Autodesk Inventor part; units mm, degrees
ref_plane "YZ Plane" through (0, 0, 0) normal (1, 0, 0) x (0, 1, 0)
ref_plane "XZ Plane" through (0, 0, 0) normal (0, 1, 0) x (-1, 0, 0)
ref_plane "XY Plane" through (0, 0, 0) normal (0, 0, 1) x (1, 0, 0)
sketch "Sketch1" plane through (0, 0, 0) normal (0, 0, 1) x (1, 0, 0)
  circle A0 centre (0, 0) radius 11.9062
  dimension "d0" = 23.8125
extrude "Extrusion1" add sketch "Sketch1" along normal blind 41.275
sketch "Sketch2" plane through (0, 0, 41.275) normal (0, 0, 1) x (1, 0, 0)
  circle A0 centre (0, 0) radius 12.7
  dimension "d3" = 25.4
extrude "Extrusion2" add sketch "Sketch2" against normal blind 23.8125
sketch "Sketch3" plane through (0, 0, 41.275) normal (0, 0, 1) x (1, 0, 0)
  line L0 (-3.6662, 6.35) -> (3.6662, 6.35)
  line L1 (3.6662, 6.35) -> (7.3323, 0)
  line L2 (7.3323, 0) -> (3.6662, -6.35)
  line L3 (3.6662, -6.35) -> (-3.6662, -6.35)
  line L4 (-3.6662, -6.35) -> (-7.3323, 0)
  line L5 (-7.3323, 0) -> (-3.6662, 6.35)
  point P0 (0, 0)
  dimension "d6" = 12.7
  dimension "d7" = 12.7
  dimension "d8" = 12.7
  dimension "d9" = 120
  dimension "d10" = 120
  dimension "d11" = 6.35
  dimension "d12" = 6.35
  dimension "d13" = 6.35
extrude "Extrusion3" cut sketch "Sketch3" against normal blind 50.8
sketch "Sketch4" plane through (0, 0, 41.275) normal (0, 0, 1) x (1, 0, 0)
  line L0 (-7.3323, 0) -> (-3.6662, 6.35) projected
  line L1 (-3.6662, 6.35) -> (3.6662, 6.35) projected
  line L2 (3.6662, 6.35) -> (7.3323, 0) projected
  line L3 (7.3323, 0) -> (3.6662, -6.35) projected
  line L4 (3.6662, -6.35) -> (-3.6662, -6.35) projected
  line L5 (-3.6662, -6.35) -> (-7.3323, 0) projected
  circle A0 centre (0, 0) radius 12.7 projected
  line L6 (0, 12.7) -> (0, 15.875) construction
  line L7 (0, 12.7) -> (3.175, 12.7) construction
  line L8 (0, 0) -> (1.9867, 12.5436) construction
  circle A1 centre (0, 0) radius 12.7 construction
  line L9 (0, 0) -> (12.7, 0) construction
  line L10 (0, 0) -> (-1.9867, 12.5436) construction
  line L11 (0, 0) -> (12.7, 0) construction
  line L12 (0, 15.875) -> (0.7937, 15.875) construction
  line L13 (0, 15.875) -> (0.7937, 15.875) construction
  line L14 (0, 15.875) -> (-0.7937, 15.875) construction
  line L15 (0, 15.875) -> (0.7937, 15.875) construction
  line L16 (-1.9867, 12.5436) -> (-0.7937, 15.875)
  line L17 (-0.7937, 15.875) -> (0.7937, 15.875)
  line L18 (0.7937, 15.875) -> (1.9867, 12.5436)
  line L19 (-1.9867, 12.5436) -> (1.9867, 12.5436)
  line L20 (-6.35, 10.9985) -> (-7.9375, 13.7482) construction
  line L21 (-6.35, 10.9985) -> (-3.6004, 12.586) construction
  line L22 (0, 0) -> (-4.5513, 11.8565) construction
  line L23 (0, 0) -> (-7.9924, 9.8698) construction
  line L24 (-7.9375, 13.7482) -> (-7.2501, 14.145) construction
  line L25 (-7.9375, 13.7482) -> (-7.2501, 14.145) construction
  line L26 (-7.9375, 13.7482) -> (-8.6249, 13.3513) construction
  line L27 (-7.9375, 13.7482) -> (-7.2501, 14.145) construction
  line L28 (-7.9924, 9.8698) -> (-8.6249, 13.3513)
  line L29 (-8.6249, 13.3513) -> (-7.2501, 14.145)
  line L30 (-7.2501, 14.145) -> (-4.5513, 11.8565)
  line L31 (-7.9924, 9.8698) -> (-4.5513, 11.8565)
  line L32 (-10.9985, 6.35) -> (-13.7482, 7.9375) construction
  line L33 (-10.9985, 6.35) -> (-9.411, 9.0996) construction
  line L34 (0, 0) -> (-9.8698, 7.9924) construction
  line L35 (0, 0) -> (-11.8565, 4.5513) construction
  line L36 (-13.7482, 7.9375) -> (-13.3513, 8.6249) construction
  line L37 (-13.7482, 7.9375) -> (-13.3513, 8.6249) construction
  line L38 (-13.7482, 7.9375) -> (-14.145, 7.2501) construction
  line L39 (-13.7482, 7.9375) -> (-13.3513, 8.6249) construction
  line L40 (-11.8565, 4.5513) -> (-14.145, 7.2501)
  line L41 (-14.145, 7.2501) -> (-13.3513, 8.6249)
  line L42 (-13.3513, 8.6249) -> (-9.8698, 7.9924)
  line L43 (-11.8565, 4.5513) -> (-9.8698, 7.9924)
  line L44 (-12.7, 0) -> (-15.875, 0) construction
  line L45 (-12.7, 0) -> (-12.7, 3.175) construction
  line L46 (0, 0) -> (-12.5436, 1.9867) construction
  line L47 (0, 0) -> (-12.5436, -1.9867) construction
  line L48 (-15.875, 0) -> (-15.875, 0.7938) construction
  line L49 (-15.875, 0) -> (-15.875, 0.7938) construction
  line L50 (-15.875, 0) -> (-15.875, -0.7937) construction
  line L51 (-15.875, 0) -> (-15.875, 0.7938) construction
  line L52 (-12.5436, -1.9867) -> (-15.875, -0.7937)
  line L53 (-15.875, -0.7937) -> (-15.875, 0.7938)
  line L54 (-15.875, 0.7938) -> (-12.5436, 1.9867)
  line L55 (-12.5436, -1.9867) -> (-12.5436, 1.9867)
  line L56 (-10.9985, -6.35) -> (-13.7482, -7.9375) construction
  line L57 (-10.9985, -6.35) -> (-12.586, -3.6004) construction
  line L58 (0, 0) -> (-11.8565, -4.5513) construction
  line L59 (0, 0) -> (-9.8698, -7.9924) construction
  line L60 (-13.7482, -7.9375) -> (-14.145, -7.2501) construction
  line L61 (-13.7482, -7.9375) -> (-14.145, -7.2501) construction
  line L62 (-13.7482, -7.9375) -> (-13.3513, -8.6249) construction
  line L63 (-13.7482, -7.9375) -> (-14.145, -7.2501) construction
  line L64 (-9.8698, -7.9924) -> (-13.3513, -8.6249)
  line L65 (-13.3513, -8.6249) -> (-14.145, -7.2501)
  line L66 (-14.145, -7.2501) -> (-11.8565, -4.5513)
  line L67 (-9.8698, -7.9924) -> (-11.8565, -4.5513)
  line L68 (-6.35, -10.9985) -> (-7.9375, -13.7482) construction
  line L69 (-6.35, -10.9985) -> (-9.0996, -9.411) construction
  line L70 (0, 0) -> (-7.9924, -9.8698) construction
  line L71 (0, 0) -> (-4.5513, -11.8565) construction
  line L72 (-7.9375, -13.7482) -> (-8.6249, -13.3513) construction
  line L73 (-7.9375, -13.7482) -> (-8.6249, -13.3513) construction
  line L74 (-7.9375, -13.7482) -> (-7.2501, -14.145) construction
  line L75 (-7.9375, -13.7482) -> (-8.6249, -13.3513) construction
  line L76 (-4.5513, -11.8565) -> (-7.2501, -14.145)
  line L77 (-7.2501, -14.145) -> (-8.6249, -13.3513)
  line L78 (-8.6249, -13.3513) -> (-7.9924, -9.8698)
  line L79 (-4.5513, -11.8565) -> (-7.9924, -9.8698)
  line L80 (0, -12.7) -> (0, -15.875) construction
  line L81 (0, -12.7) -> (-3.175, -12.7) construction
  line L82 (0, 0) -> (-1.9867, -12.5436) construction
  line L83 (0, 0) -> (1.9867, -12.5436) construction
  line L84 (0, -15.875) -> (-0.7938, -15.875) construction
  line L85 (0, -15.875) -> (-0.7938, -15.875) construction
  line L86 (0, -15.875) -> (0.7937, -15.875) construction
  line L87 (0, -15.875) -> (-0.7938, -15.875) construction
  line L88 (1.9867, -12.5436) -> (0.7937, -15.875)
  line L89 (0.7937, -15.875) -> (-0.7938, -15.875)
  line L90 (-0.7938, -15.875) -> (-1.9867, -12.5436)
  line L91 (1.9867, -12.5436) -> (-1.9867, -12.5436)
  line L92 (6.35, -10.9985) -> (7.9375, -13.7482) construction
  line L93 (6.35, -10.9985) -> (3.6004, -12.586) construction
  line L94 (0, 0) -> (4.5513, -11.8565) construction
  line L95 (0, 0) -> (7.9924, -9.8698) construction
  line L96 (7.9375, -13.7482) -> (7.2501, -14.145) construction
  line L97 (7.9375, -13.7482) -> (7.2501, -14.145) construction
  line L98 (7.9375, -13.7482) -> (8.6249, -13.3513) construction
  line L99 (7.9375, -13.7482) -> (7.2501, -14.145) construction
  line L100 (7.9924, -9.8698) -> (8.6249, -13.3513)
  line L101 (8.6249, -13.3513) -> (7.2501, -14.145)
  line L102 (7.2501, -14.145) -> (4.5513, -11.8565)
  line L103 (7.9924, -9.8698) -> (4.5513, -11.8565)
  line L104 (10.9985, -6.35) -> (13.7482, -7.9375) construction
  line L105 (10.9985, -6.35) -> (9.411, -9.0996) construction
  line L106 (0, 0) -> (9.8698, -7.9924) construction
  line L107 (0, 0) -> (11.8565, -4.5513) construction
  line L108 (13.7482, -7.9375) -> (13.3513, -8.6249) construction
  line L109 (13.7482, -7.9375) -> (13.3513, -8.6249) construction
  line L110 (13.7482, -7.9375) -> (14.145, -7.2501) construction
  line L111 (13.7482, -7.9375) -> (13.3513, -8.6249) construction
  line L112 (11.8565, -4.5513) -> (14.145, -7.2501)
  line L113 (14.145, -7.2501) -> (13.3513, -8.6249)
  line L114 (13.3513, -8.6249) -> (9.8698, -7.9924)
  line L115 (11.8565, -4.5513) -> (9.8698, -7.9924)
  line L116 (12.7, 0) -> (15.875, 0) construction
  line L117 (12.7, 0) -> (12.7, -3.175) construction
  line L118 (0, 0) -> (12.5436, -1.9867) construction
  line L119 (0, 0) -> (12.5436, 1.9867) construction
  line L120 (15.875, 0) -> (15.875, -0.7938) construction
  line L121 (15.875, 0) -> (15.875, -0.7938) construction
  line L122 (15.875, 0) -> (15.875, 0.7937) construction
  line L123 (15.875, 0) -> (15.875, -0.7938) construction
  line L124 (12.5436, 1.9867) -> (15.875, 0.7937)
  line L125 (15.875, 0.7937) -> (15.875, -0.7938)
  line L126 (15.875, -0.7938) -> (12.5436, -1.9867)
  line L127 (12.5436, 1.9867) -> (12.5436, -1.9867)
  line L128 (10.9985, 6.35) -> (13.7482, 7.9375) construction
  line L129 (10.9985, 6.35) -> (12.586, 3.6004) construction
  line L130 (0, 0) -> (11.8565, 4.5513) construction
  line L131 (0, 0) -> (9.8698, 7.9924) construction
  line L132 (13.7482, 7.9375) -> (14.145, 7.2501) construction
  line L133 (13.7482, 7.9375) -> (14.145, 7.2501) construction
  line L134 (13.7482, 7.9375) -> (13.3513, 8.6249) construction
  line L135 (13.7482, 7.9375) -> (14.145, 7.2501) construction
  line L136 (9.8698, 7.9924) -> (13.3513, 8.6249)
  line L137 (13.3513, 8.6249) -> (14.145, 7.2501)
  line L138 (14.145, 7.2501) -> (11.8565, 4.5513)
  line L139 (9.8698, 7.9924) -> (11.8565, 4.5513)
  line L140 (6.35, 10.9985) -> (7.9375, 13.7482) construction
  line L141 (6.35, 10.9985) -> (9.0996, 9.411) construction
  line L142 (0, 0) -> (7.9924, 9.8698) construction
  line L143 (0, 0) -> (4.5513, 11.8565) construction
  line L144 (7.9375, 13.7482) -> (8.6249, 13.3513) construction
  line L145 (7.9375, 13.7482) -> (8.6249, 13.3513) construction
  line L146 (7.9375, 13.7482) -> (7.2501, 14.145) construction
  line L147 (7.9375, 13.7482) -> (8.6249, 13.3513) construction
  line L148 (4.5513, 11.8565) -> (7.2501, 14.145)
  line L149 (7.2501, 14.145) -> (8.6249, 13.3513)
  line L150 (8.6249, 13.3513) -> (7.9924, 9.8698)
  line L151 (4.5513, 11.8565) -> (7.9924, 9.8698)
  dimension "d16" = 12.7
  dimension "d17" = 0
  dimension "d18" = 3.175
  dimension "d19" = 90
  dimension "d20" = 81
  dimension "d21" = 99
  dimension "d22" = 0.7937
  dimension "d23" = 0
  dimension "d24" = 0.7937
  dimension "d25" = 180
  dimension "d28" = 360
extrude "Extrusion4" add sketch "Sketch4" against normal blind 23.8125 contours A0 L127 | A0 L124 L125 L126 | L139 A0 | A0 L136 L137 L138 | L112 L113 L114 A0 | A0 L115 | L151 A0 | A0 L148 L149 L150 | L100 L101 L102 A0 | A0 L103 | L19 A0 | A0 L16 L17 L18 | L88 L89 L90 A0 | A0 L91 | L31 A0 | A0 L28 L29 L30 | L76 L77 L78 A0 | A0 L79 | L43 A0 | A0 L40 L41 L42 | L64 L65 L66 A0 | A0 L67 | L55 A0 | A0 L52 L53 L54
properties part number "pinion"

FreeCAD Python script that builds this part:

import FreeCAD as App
import Part
import Sketcher
from FreeCAD import Vector
Q = App.Units.Quantity


def add_polygon(sketch, points):
    """Adds a closed chain of lines whose ends are joined by coincident constraints."""
    first, n = sketch.GeometryCount, len(points)
    for a, b in zip(points, points[1:] + points[:1]):
        sketch.addGeometry(Part.LineSegment(App.Vector(*a, 0), App.Vector(*b, 0)), False)
    for i in range(n):
        sketch.addConstraint(Sketcher.Constraint("Coincident", first + i, 2, first + (i + 1) % n, 1))

doc = App.newDocument("Part")
body = doc.addObject("PartDesign::Body", "Body")

# Sketch on XY plane
sketch1 = body.newObject("Sketcher::SketchObject", "Sketch")
sketch1.AttachmentSupport = (doc.getObject("XY_Plane"), [""])
sketch1.MapMode = "FlatFace"
sketch1.addGeometry(Part.Circle(Vector(0, 0, 0), Vector(0, 0, 1), 11.9062), False)
sketch1.addConstraint(Sketcher.Constraint("Coincident", 0, 3, -1, 1))
sketch1.addConstraint(Sketcher.Constraint("Diameter", 0, Q("0.9375 in")))
pad1 = body.newObject("PartDesign::Pad", "Pad")
pad1.Profile = sketch1
pad1.Length = Q("1.625 in")

# Sketch on XY plane
sketch2 = body.newObject("Sketcher::SketchObject", "Sketch001")
sketch2.AttachmentSupport = (doc.getObject("XY_Plane"), [""])
sketch2.MapMode = "FlatFace"
sketch2.AttachmentOffset = App.Placement(Vector(0, 0, 1.625 * 25.4), App.Rotation())
sketch2.addGeometry(Part.Circle(Vector(0, 0, 0), Vector(0, 0, 1), 12.7), False)
sketch2.addConstraint(Sketcher.Constraint("Coincident", 0, 3, -1, 1))
sketch2.addConstraint(Sketcher.Constraint("Diameter", 0, Q("1 in")))
pad2 = body.newObject("PartDesign::Pad", "Pad001")
pad2.Profile = sketch2
pad2.Length = Q("0.9375 in")
pad2.Reversed = True

# Sketch on XY plane
sketch3 = body.newObject("Sketcher::SketchObject", "Sketch002")
sketch3.AttachmentSupport = (doc.getObject("XY_Plane"), [""])
sketch3.MapMode = "FlatFace"
sketch3.AttachmentOffset = App.Placement(Vector(0, 0, 1.625 * 25.4), App.Rotation())
add_polygon(sketch3, [(3.6662, 6.35), (-3.6662, 6.35), (-7.3323, 0), (-3.6662, -6.35), (3.6662, -6.35), (7.3323, 0)])  # lines 0-5
sketch3.addConstraint(Sketcher.Constraint("Horizontal", 0))
sketch3.addConstraint(Sketcher.Constraint("Horizontal", 3))
sketch3.addConstraint(Sketcher.Constraint("Symmetric", 0, 2, 3, 2, -1, 1))
sketch3.addConstraint(Sketcher.Constraint("Symmetric", 1, 2, 4, 2, -1, 1))
sketch3.addConstraint(Sketcher.Constraint("PointOnObject", 1, 2, -1))
sketch3.addConstraint(Sketcher.Constraint("Parallel", 2, 5))
sketch3.addConstraint(Sketcher.Constraint("Vertical", 0, 2, 2, 2))
sketch3.addConstraint(Sketcher.Constraint("Angle", 1, Q("-119.9995 deg")))
sketch3.addConstraint(Sketcher.Constraint("DistanceY", 2, 2, 0, 2, Q("0.5 in")))
sketch3.addConstraint(Sketcher.Constraint("DistanceX", 1, 2, 3, 2, Q("0.433 in")))
pocket1 = body.newObject("PartDesign::Pocket", "Pocket")
pocket1.Profile = sketch3
pocket1.Length = Q("2 in")

# Sketch on XY plane
sketch4 = body.newObject("Sketcher::SketchObject", "Sketch003")
sketch4.AttachmentSupport = (doc.getObject("XY_Plane"), [""])
sketch4.MapMode = "FlatFace"
sketch4.AttachmentOffset = App.Placement(Vector(0, 0, 1.625 * 25.4), App.Rotation())
add_polygon(sketch4, [(12.5436, 1.9867), (12.5436, -1.9867), (15.875, -0.7938), (15.875, 0.7937)])  # lines 0-3
add_polygon(sketch4, [(9.8698, 7.9924), (11.8565, 4.5513), (14.145, 7.2501), (13.3513, 8.6249)])  # lines 4-7
add_polygon(sketch4, [(14.145, -7.2501), (11.8565, -4.5513), (9.8698, -7.9924), (13.3513, -8.6249)])  # lines 8-11
add_polygon(sketch4, [(4.5513, 11.8565), (7.9924, 9.8698), (8.6249, 13.3513), (7.2501, 14.145)])  # lines 12-15
add_polygon(sketch4, [(8.6249, -13.3513), (7.9924, -9.8698), (4.5513, -11.8565), (7.2501, -14.145)])  # lines 16-19
add_polygon(sketch4, [(-1.9867, 12.5436), (1.9867, 12.5436), (0.7937, 15.875), (-0.7937, 15.875)])  # lines 20-23
add_polygon(sketch4, [(0.7937, -15.875), (1.9867, -12.5436), (-1.9867, -12.5436), (-0.7938, -15.875)])  # lines 24-27
add_polygon(sketch4, [(-7.9924, 9.8698), (-4.5513, 11.8565), (-7.2501, 14.145), (-8.6249, 13.3513)])  # lines 28-31
add_polygon(sketch4, [(-7.2501, -14.145), (-4.5513, -11.8565), (-7.9924, -9.8698), (-8.6249, -13.3513)])  # lines 32-35
add_polygon(sketch4, [(-11.8565, 4.5513), (-9.8698, 7.9924), (-13.3513, 8.6249), (-14.145, 7.2501)])  # lines 36-39
add_polygon(sketch4, [(-13.3513, -8.6249), (-9.8698, -7.9924), (-11.8565, -4.5513), (-14.145, -7.2501)])  # lines 40-43
add_polygon(sketch4, [(-12.5436, -1.9867), (-12.5436, 1.9867), (-15.875, 0.7938), (-15.875, -0.7937)])  # lines 44-47
sketch4.addConstraint(Sketcher.Constraint("Vertical", 0))
sketch4.addConstraint(Sketcher.Constraint("Vertical", 2))
sketch4.addConstraint(Sketcher.Constraint("Horizontal", 20))
sketch4.addConstraint(Sketcher.Constraint("Horizontal", 22))
sketch4.addConstraint(Sketcher.Constraint("Horizontal", 25))
sketch4.addConstraint(Sketcher.Constraint("Horizontal", 27))
sketch4.addConstraint(Sketcher.Constraint("Vertical", 44))
sketch4.addConstraint(Sketcher.Constraint("Vertical", 46))
sketch4.addConstraint(Sketcher.Constraint("Symmetric", 23, 2, 24, 2, -1, 1))
sketch4.addConstraint(Sketcher.Constraint("Symmetric", 21, 2, 26, 2, -1, 1))
sketch4.addConstraint(Sketcher.Constraint("Symmetric", 17, 2, 28, 2, -1, 1))
sketch4.addConstraint(Sketcher.Constraint("Symmetric", 18, 2, 29, 2, -1, 1))
sketch4.addConstraint(Sketcher.Constraint("Symmetric", 19, 2, 30, 2, -1, 1))
sketch4.addConstraint(Sketcher.Constraint("Symmetric", 16, 2, 31, 2, -1, 1))
sketch4.addConstraint(Sketcher.Constraint("Symmetric", 15, 2, 32, 2, -1, 1))
sketch4.addConstraint(Sketcher.Constraint("Symmetric", 12, 2, 33, 2, -1, 1))
sketch4.addConstraint(Sketcher.Constraint("Symmetric", 13, 2, 34, 2, -1, 1))
sketch4.addConstraint(Sketcher.Constraint("Symmetric", 14, 2, 35, 2, -1, 1))
sketch4.addConstraint(Sketcher.Constraint("Symmetric", 9, 2, 36, 2, -1, 1))
sketch4.addConstraint(Sketcher.Constraint("Symmetric", 10, 2, 37, 2, -1, 1))
sketch4.addConstraint(Sketcher.Constraint("Symmetric", 11, 2, 38, 2, -1, 1))
sketch4.addConstraint(Sketcher.Constraint("Symmetric", 8, 2, 39, 2, -1, 1))
sketch4.addConstraint(Sketcher.Constraint("Symmetric", 7, 2, 40, 2, -1, 1))
sketch4.addConstraint(Sketcher.Constraint("Symmetric", 4, 2, 41, 2, -1, 1))
sketch4.addConstraint(Sketcher.Constraint("Symmetric", 5, 2, 42, 2, -1, 1))
sketch4.addConstraint(Sketcher.Constraint("Symmetric", 6, 2, 43, 2, -1, 1))
sketch4.addConstraint(Sketcher.Constraint("Symmetric", 0, 2, 44, 2, -1, 1))
sketch4.addConstraint(Sketcher.Constraint("Symmetric", 1, 2, 45, 2, -1, 1))
sketch4.addConstraint(Sketcher.Constraint("Symmetric", 15, 2, 28, 2, -2))
sketch4.addConstraint(Sketcher.Constraint("Symmetric", 14, 2, 29, 2, -2))
sketch4.addConstraint(Sketcher.Constraint("Symmetric", 13, 2, 30, 2, -2))
sketch4.addConstraint(Sketcher.Constraint("Symmetric", 12, 2, 31, 2, -2))
sketch4.addConstraint(Sketcher.Constraint("Symmetric", 7, 2, 36, 2, -2))
sketch4.addConstraint(Sketcher.Constraint("Symmetric", 6, 2, 37, 2, -2))
sketch4.addConstraint(Sketcher.Constraint("Symmetric", 5, 2, 38, 2, -2))
sketch4.addConstraint(Sketcher.Constraint("Symmetric", 4, 2, 39, 2, -2))
sketch4.addConstraint(Sketcher.Constraint("Parallel", 4, 6))
sketch4.addConstraint(Sketcher.Constraint("Perpendicular", 11, 12))
sketch4.addConstraint(Sketcher.Constraint("Perpendicular", 10, 13))
sketch4.addConstraint(Sketcher.Constraint("Parallel", 12, 14))
sketch4.addConstraint(Sketcher.Constraint("Perpendicular", 8, 15))
sketch4.addConstraint(Sketcher.Constraint("Perpendicular", 1, 21))
sketch4.addConstraint(Sketcher.Constraint("Perpendicular", 3, 23))
sketch4.addConstraint(Sketcher.Constraint("Parallel", 23, 24))
sketch4.addConstraint(Sketcher.Constraint("Parallel", 21, 26))
sketch4.addConstraint(Sketcher.Constraint("Perpendicular", 24, 47))
sketch4.addConstraint(Sketcher.Constraint("Horizontal", 3, 2, 44, 2))
sketch4.addConstraint(Sketcher.Constraint("Horizontal", 2, 2, 45, 2))
sketch4.addConstraint(Sketcher.Constraint("Horizontal", 1, 2, 46, 2))
sketch4.addConstraint(Sketcher.Constraint("Vertical", 20, 2, 24, 2))
sketch4.addConstraint(Sketcher.Constraint("Equal", 25, 0))
sketch4.addConstraint(Sketcher.Constraint("Equal", 27, 2))
sketch4.addConstraint(Sketcher.Constraint("Equal", 3, 5))
sketch4.addConstraint(Sketcher.Constraint("Equal", 5, 7))
sketch4.addConstraint(Sketcher.Constraint("Equal", 9, 12))
sketch4.addConstraint(Sketcher.Constraint("Equal", 10, 13))
sketch4.addConstraint(Sketcher.Constraint("DistanceY", 1, 2, -1, 1, Q("0.031252 in")))
sketch4.addConstraint(Sketcher.Constraint("Angle", 4, Q("-60.0002 deg")))
sketch4.addConstraint(Sketcher.Constraint("DistanceX", 6, 2, 5, 2, Q("0.031248 in")))
sketch4.addConstraint(Sketcher.Constraint("DistanceX", -1, 1, 1, 2, Q("0.625 in")))
sketch4.addConstraint(Sketcher.Constraint("DistanceY", -1, 1, 21, 2, Q("0.625 in")))
sketch4.addConstraint(Sketcher.Constraint("DistanceY", 6, 2, 12, 2, Q("0.049 in")))
sketch4.addConstraint(Sketcher.Constraint("DistanceX", 13, 2, 7, 2, Q("0.049 in")))
sketch4.addConstraint(Sketcher.Constraint("Distance", 5, Q("0.1393 in")))
sketch4.addConstraint(Sketcher.Constraint("DistanceX", 20, 1, 20, 2, Q("3.9734 mm")))
sketch4.addConstraint(Sketcher.Constraint("DistanceX", -1, 1, 4, 2, Q("0.4668 in")))
sketch4.addConstraint(Sketcher.Constraint("DistanceX", -1, 1, 5, 2, Q("0.5569 in")))
sketch4.addConstraint(Sketcher.Constraint("DistanceY", -1, 1, 14, 2, Q("0.5569 in")))
pad3 = body.newObject("PartDesign::Pad", "Pad002")
pad3.Profile = sketch4
pad3.Length = Q("0.9375 in")
pad3.Reversed = True

doc.recompute()
